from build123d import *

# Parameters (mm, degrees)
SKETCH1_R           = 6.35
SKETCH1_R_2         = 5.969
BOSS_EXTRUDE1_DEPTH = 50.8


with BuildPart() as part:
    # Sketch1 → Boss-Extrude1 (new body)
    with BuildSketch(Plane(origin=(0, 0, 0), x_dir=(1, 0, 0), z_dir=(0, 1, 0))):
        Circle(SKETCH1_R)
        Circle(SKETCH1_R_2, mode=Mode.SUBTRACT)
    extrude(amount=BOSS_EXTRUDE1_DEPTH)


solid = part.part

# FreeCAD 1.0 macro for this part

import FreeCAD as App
import Part
import Sketcher
from FreeCAD import Vector
Q = App.Units.Quantity

doc = App.newDocument("Part")
body = doc.addObject("PartDesign::Body", "Body")

sketch1 = doc.addObject("Sketcher::SketchObject", "Sketch")
body.addObject(sketch1)
sketch1.AttachmentSupport = (doc.XZ_Plane, [""])
sketch1.MapMode = "FlatFace"
sketch1.addGeometry(Part.Circle(Vector(0, 0, 0), Vector(0, 0, 1), 6), False)
sketch1.addGeometry(Part.Circle(Vector(0, 0, 0), Vector(0, 0, 1), 6), False)
sketch1.addConstraint(Sketcher.Constraint("Coincident", 0, 3, -1, 1))
sketch1.addConstraint(Sketcher.Constraint("Coincident", 1, 3, -1, 1))
sketch1.addConstraint(Sketcher.Constraint("Diameter", 0, Q("0.5 in")))
sketch1.addConstraint(Sketcher.Constraint("Diameter", 1, Q("0.47 in")))
pad1 = doc.addObject("PartDesign::Pad", "Pad")
body.addObject(pad1)
pad1.Profile = sketch1
pad1.Length = Q("2 in")
pad1.Reversed = True

doc.recompute()
